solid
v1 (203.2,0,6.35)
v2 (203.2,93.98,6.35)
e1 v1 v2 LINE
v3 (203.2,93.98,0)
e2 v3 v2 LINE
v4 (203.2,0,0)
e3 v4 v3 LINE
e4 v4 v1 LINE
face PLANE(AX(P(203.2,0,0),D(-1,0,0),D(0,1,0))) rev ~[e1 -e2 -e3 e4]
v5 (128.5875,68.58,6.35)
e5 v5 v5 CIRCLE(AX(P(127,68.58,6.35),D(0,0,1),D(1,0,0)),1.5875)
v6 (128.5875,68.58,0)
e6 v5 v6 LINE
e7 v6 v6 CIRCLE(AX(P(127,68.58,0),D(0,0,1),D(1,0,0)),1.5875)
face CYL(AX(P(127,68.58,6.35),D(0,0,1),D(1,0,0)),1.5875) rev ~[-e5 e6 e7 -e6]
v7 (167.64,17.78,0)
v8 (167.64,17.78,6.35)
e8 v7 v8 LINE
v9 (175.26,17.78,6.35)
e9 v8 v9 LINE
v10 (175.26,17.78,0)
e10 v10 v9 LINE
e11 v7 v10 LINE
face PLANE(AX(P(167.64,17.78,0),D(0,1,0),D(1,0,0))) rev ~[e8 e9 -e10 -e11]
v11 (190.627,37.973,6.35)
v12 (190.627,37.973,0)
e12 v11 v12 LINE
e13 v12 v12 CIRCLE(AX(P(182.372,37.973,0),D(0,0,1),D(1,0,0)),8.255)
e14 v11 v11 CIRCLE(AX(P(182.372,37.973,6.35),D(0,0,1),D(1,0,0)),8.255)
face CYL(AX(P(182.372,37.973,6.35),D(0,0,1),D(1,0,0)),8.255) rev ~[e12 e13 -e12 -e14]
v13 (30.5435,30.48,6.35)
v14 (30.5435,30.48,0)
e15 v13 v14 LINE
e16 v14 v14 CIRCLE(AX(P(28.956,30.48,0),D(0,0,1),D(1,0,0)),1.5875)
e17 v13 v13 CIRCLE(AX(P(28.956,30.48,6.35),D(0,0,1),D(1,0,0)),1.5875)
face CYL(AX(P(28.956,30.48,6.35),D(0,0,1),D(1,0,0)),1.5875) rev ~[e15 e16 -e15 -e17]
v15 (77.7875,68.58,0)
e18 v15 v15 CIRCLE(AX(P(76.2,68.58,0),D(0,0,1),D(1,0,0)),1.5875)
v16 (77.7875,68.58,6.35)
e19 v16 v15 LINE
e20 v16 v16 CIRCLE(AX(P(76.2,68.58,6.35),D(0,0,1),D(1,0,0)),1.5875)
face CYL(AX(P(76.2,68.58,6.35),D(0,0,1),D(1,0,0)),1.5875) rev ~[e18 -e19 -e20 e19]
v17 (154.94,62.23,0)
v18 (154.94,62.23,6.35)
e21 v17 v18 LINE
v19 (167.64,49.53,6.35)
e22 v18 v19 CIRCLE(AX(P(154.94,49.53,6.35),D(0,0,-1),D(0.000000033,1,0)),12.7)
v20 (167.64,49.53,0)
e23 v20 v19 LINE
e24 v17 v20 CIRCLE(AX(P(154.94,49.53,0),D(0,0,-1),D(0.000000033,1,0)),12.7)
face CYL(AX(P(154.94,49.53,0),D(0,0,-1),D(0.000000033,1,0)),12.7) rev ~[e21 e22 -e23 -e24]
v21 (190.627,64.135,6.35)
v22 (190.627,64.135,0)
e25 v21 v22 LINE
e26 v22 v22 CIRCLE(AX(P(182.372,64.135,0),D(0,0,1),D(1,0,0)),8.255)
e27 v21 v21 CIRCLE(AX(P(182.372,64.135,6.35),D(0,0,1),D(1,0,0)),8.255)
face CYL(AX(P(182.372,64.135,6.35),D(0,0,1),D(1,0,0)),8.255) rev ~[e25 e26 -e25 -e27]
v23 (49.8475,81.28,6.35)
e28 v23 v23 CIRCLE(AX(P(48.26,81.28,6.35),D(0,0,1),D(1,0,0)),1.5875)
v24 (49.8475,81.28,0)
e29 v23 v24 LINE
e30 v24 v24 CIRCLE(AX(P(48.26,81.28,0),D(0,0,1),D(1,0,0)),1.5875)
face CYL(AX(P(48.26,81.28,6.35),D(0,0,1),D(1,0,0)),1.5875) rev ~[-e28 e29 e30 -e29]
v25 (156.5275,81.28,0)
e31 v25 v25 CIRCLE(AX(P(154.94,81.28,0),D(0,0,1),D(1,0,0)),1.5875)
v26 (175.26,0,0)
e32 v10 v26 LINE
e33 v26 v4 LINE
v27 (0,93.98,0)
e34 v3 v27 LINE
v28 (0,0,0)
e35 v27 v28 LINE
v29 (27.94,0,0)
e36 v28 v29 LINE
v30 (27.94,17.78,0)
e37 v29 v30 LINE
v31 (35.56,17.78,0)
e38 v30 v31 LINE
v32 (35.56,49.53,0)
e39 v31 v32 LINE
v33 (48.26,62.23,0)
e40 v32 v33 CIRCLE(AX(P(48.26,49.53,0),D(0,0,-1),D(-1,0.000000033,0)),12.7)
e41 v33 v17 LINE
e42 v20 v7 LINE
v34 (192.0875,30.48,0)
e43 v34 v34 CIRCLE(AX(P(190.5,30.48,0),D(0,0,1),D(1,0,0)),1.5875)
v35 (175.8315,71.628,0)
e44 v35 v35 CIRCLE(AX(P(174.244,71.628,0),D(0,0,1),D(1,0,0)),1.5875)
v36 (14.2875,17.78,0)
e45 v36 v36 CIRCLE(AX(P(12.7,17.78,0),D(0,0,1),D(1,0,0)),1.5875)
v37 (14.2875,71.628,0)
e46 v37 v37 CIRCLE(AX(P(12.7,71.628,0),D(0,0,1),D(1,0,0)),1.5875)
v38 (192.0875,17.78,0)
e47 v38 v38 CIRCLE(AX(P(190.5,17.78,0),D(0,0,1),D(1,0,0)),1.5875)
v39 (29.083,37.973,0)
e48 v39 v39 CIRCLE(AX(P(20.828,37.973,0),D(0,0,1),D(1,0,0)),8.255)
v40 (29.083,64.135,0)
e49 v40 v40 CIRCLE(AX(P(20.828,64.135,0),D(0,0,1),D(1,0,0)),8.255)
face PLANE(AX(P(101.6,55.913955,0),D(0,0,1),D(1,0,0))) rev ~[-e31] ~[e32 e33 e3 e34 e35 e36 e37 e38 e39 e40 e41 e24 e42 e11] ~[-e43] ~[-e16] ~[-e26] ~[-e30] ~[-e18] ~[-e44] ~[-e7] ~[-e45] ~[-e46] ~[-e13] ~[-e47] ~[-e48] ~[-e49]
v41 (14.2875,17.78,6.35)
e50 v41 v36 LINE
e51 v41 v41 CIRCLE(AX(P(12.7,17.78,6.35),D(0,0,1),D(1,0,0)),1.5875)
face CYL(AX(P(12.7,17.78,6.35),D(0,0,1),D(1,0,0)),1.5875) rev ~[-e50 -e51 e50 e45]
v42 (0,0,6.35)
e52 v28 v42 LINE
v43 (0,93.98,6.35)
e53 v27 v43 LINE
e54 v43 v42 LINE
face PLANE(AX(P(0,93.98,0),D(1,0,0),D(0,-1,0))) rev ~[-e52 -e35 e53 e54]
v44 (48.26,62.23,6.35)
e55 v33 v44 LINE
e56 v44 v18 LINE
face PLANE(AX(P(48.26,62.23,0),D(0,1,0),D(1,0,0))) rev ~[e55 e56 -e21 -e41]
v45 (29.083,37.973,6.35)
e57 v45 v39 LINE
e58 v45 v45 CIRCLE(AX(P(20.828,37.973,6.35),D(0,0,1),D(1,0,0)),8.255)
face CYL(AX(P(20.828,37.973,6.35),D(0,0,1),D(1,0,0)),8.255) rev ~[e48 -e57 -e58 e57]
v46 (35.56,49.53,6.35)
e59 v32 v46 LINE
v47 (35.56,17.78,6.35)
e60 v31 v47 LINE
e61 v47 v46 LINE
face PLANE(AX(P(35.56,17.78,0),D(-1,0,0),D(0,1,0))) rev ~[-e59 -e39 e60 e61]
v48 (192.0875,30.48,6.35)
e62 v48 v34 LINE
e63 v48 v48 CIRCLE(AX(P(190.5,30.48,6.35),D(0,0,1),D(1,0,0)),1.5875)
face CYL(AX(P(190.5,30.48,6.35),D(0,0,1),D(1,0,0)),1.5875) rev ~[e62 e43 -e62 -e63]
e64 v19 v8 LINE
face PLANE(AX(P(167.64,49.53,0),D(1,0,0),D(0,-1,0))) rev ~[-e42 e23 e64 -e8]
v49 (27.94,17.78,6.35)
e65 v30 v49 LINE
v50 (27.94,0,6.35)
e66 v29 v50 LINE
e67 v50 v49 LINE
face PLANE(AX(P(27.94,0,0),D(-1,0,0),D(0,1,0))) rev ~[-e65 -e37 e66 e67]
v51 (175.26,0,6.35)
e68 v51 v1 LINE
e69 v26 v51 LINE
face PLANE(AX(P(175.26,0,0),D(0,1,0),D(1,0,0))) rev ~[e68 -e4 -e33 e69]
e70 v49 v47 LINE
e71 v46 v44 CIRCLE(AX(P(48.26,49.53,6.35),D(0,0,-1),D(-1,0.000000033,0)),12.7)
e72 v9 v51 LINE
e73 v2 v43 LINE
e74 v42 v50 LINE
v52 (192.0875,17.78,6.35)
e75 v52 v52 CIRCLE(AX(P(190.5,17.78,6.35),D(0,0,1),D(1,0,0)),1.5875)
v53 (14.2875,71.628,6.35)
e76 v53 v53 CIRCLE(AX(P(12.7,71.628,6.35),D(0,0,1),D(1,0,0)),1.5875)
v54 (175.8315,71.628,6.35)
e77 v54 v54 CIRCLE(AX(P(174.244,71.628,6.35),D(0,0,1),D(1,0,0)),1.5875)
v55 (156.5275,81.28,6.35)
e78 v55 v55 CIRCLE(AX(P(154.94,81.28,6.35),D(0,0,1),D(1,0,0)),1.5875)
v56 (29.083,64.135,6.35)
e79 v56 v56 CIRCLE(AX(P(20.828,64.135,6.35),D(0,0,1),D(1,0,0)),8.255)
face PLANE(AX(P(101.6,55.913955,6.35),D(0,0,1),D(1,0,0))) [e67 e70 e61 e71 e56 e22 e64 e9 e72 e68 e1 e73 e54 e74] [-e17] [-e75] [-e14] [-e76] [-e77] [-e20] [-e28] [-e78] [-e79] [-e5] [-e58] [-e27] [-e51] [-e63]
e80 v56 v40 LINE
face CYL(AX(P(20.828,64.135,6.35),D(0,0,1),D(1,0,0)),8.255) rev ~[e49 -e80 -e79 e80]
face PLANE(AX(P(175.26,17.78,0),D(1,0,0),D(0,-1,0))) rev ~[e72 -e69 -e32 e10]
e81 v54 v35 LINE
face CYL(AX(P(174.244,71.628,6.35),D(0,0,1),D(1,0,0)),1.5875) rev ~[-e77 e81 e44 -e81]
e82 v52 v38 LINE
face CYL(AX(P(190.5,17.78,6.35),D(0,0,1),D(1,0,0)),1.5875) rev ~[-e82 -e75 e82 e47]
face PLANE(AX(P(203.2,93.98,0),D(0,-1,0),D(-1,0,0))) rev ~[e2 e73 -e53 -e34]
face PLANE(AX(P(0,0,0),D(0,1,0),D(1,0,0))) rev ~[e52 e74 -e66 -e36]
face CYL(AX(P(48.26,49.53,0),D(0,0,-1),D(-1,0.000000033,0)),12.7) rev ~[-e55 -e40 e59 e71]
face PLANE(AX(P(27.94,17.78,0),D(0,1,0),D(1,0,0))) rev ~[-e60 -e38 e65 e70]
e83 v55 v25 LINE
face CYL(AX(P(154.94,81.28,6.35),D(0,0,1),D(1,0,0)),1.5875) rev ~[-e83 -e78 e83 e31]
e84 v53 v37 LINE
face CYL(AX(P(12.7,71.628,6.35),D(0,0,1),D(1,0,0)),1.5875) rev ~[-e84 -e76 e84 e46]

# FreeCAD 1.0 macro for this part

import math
import FreeCAD as App
import Part
import Sketcher
from FreeCAD import Vector
Q = App.Units.Quantity

doc = App.newDocument("Part")
body = doc.addObject("PartDesign::Body", "Body")

sketch1 = body.newObject("Sketcher::SketchObject", "Sketch")
sketch1.AttachmentSupport = (doc.getObject("XY_Plane"), [""])
sketch1.MapMode = "FlatFace"
sketch1.addGeometry([
    Part.LineSegment(Vector(0, 93.98, 0), Vector(0, 0, 0)),
    Part.LineSegment(Vector(0, 0, 0), Vector(27.94, 0, 0)),
    Part.LineSegment(Vector(27.94, 0, 0), Vector(27.94, 17.78, 0)),
    Part.LineSegment(Vector(27.94, 17.78, 0), Vector(35.56, 17.78, 0)),
    Part.LineSegment(Vector(35.56, 17.78, 0), Vector(35.56, 49.53, 0)),
    Part.ArcOfCircle(Part.Circle(Vector(48.26, 49.53, 0), Vector(0, 0, 1), 12.7), math.radians(90.000002), math.radians(179.999998)),
    Part.LineSegment(Vector(48.26, 62.23, 0), Vector(154.94, 62.23, 0)),
    Part.ArcOfCircle(Part.Circle(Vector(154.94, 49.53, 0), Vector(0, 0, 1), 12.7), math.radians(0.000002), math.radians(89.999998)),
    Part.LineSegment(Vector(167.64, 49.53, 0), Vector(167.64, 17.78, 0)),
    Part.LineSegment(Vector(167.64, 17.78, 0), Vector(175.26, 17.78, 0)),
    Part.LineSegment(Vector(175.26, 17.78, 0), Vector(175.26, 0, 0)),
    Part.LineSegment(Vector(175.26, 0, 0), Vector(203.2, 0, 0)),
    Part.LineSegment(Vector(203.2, 0, 0), Vector(203.2, 93.98, 0)),
    Part.LineSegment(Vector(203.2, 93.98, 0), Vector(0, 93.98, 0)),
], False)
sketch1.addConstraint([
    Sketcher.Constraint("Coincident", 0, 2, 1, 1),
    Sketcher.Constraint("Coincident", 1, 2, 2, 1),
    Sketcher.Constraint("Coincident", 2, 2, 3, 1),
    Sketcher.Constraint("Coincident", 3, 2, 4, 1),
    Sketcher.Constraint("Tangent", 4, 2, 5, 2),
    Sketcher.Constraint("Tangent", 5, 1, 6, 1),
    Sketcher.Constraint("Tangent", 6, 2, 7, 2),
    Sketcher.Constraint("Tangent", 7, 1, 8, 1),
    Sketcher.Constraint("Coincident", 8, 2, 9, 1),
    Sketcher.Constraint("Coincident", 9, 2, 10, 1),
    Sketcher.Constraint("Coincident", 10, 2, 11, 1),
    Sketcher.Constraint("Coincident", 11, 2, 12, 1),
    Sketcher.Constraint("Coincident", 12, 2, 13, 1),
    Sketcher.Constraint("Coincident", 13, 2, 0, 1),
    Sketcher.Constraint("Vertical", 0),
    Sketcher.Constraint("Horizontal", 1),
    Sketcher.Constraint("Vertical", 2),
    Sketcher.Constraint("Horizontal", 3),
    Sketcher.Constraint("Vertical", 4),
    Sketcher.Constraint("Horizontal", 6),
    Sketcher.Constraint("Vertical", 8),
    Sketcher.Constraint("Horizontal", 9),
    Sketcher.Constraint("Vertical", 10),
    Sketcher.Constraint("Horizontal", 11),
    Sketcher.Constraint("Vertical", 12),
    Sketcher.Constraint("Horizontal", 13),
    Sketcher.Constraint("Coincident", 0, 2, -1, 1),
    Sketcher.Constraint("Equal", 5, 7),
    Sketcher.Constraint("PointOnObject", 10, 2, -1),
    Sketcher.Constraint("Horizontal", 3, 2, 8, 2),
    Sketcher.Constraint("Equal", 3, 9),
    Sketcher.Constraint("Equal", 1, 11),
    Sketcher.Constraint("Radius", 5, Q("0.5 in")),
    Sketcher.Constraint("DistanceX", 13, 2, 13, 1, Q("8 in")),
    Sketcher.Constraint("DistanceX", 1, 1, 1, 2, Q("1.1 in")),
    Sketcher.Constraint("DistanceX", 3, 1, 3, 2, Q("0.3 in")),
    Sketcher.Constraint("DistanceY", 0, 2, 0, 1, Q("3.7 in")),
    Sketcher.Constraint("DistanceY", 2, 1, 2, 2, Q("0.7 in")),
    Sketcher.Constraint("DistanceY", 4, 1, 4, 2, Q("1.25 in")),
])
pad1 = body.newObject("PartDesign::Pad", "Pad")
pad1.Profile = sketch1
pad1.Length = Q("0.25 in")

sketch2 = body.newObject("Sketcher::SketchObject", "Sketch001")
sketch2.AttachmentSupport = (doc.getObject("XY_Plane"), [""])
sketch2.MapMode = "FlatFace"
sketch2.AttachmentOffset = App.Placement(Vector(0, 0, 0.25 * 25.4), App.Rotation())
sketch2.addGeometry([
    Part.Circle(Vector(12.7, 17.78, 0), Vector(0, 0, 1), 1.5875),
    Part.Circle(Vector(28.956, 30.48, 0), Vector(0, 0, 1), 1.5875),
    Part.Circle(Vector(20.828, 37.973, 0), Vector(0, 0, 1), 8.255),
    Part.Circle(Vector(20.828, 64.135, 0), Vector(0, 0, 1), 8.255),
    Part.Circle(Vector(12.7, 71.628, 0), Vector(0, 0, 1), 1.5875),
    Part.Circle(Vector(48.26, 81.28, 0), Vector(0, 0, 1), 1.5875),
    Part.Circle(Vector(76.2, 68.58, 0), Vector(0, 0, 1), 1.5875),
    Part.Circle(Vector(127, 68.58, 0), Vector(0, 0, 1), 1.5875),
    Part.Circle(Vector(154.94, 81.28, 0), Vector(0, 0, 1), 1.5875),
    Part.Circle(Vector(174.244, 71.628, 0), Vector(0, 0, 1), 1.5875),
    Part.Circle(Vector(182.372, 64.135, 0), Vector(0, 0, 1), 8.255),
    Part.Circle(Vector(182.372, 37.973, 0), Vector(0, 0, 1), 8.255),
    Part.Circle(Vector(190.5, 30.48, 0), Vector(0, 0, 1), 1.5875),
    Part.Circle(Vector(190.5, 17.78, 0), Vector(0, 0, 1), 1.5875),
], False)
sketch2.addConstraint([
    Sketcher.Constraint("Equal", 0, 1),
    Sketcher.Constraint("Equal", 2, 3),
    Sketcher.Constraint("Equal", 1, 4),
    Sketcher.Constraint("Equal", 4, 5),
    Sketcher.Constraint("Equal", 5, 6),
    Sketcher.Constraint("Equal", 6, 7),
    Sketcher.Constraint("Equal", 7, 8),
    Sketcher.Constraint("Equal", 8, 9),
    Sketcher.Constraint("Equal", 3, 10),
    Sketcher.Constraint("Equal", 10, 11),
    Sketcher.Constraint("Equal", 9, 12),
    Sketcher.Constraint("Equal", 12, 13),
    Sketcher.Constraint("Horizontal", 6, 3, 7, 3),
    Sketcher.Constraint("Horizontal", 5, 3, 8, 3),
    Sketcher.Constraint("Horizontal", 4, 3, 9, 3),
    Sketcher.Constraint("Horizontal", 3, 3, 10, 3),
    Sketcher.Constraint("Horizontal", 2, 3, 11, 3),
    Sketcher.Constraint("Horizontal", 1, 3, 12, 3),
    Sketcher.Constraint("Horizontal", 0, 3, 13, 3),
    Sketcher.Constraint("Vertical", 2, 3, 3, 3),
    Sketcher.Constraint("Vertical", 0, 3, 4, 3),
    Sketcher.Constraint("Vertical", 10, 3, 11, 3),
    Sketcher.Constraint("Vertical", 12, 3, 13, 3),
    Sketcher.Constraint("Diameter", 2, Q("0.65 in")),
    Sketcher.Constraint("Diameter", 0, Q("0.125 in")),
    Sketcher.Constraint("DistanceX", -1, 1, 6, 3, Q("3 in")),
    Sketcher.Constraint("DistanceX", -1, 1, 7, 3, Q("5 in")),
    Sketcher.Constraint("DistanceY", 1, 3, 5, 3, Q("2 in")),
    Sketcher.Constraint("DistanceX", -1, 1, 0, 3, Q("0.5 in")),
    Sketcher.Constraint("DistanceY", -1, 1, 0, 3, Q("0.7 in")),
    Sketcher.Constraint("DistanceY", -1, 1, 1, 3, Q("1.2 in")),
    Sketcher.Constraint("DistanceX", -1, 1, 5, 3, Q("1.9 in")),
    Sketcher.Constraint("DistanceY", -1, 1, 6, 3, Q("2.7 in")),
    Sketcher.Constraint("DistanceX", -1, 1, 8, 3, Q("6.1 in")),
    Sketcher.Constraint("DistanceX", -1, 1, 12, 3, Q("7.5 in")),
    Sketcher.Constraint("DistanceX", -1, 1, 1, 3, Q("1.14 in")),
    Sketcher.Constraint("DistanceX", -1, 1, 2, 3, Q("0.82 in")),
    Sketcher.Constraint("DistanceY", -1, 1, 4, 3, Q("2.82 in")),
    Sketcher.Constraint("DistanceX", -1, 1, 9, 3, Q("6.86 in")),
    Sketcher.Constraint("DistanceX", -1, 1, 10, 3, Q("7.18 in")),
    Sketcher.Constraint("DistanceY", 2, 3, 3, 3, Q("1.03 in")),
    Sketcher.Constraint("DistanceY", -1, 1, 2, 3, Q("1.495 in")),
])
pocket1 = body.newObject("PartDesign::Pocket", "Pocket")
pocket1.Profile = sketch2
pocket1.Length = Q("0.25 in")

doc.recompute()
